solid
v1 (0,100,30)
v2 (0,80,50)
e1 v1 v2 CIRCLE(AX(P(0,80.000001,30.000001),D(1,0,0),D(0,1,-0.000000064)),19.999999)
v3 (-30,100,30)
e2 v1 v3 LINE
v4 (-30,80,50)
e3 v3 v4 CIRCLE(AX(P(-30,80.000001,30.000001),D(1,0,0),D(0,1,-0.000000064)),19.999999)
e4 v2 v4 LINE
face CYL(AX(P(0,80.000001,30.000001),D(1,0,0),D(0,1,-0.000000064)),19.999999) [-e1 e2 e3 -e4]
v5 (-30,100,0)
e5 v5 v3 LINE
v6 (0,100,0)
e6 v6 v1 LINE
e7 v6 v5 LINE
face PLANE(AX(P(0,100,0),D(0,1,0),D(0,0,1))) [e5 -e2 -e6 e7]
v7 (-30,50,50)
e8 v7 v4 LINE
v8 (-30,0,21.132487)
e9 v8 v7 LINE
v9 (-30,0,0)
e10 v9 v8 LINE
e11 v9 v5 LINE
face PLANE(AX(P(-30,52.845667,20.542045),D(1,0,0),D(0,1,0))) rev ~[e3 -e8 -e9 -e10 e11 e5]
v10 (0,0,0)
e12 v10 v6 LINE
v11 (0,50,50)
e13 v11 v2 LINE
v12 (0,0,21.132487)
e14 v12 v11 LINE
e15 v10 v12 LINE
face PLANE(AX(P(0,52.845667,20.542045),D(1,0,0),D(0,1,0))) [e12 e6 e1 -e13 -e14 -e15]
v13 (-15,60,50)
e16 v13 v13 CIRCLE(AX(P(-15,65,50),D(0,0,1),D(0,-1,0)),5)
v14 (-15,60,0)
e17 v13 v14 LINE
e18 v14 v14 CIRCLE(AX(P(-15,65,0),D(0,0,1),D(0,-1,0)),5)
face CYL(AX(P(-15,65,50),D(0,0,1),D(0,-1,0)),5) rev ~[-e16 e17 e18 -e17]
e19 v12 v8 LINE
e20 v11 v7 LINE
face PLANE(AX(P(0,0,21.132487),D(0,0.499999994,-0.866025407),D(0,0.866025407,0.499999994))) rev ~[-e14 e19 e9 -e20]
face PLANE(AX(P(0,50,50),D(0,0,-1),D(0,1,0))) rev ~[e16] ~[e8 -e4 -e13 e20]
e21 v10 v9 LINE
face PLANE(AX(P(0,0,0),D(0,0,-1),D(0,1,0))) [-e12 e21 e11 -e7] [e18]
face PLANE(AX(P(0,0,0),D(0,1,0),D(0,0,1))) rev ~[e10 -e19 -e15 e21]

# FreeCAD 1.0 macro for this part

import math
import FreeCAD as App
import Part
import Sketcher
from FreeCAD import Vector
Q = App.Units.Quantity

doc = App.newDocument("Part")
body = doc.addObject("PartDesign::Body", "Body")

# Sketch on YZ plane
sketch1 = body.newObject("Sketcher::SketchObject", "Sketch")
sketch1.AttachmentSupport = (doc.getObject("YZ_Plane"), [""])
sketch1.MapMode = "FlatFace"
sketch1.addGeometry([
    Part.LineSegment(Vector(0, 0, 0), Vector(100, 0, 0)),  # 0
    Part.LineSegment(Vector(100, 0, 0), Vector(100, 30, 0)),  # 1
    Part.ArcOfCircle(Part.Circle(Vector(80, 30, 0), Vector(0, 0, 1), 20), math.radians(0), math.radians(90)),  # 2
    Part.LineSegment(Vector(80, 50, 0), Vector(50, 50, 0)),  # 3
    Part.LineSegment(Vector(50, 50, 0), Vector(0, 21, 0)),  # 4
    Part.LineSegment(Vector(0, 21, 0), Vector(0, 0, 0)),  # 5
], False)
sketch1.addConstraint([
    Sketcher.Constraint("Coincident", 0, 2, 1, 1),
    Sketcher.Constraint("Tangent", 1, 2, 2, 1),
    Sketcher.Constraint("Tangent", 2, 2, 3, 1),
    Sketcher.Constraint("Coincident", 3, 2, 4, 1),
    Sketcher.Constraint("Coincident", 4, 2, 5, 1),
    Sketcher.Constraint("Coincident", 5, 2, 0, 1),
    Sketcher.Constraint("Horizontal", 0),
    Sketcher.Constraint("Vertical", 1),
    Sketcher.Constraint("Horizontal", 3),
    Sketcher.Constraint("Vertical", 5),
    Sketcher.Constraint("Coincident", 5, 2, -1, 1),
    Sketcher.Constraint("Equal", 3, 1),
    Sketcher.Constraint("Radius", 2, 19.999999),
    Sketcher.Constraint("DistanceX", 0, 1, 0, 2, 100.0),
    Sketcher.Constraint("DistanceX", 3, 2, 3, 1, 30.0),
    Sketcher.Constraint("Angle", 4, Q("-150 deg")),
])
pad1 = body.newObject("PartDesign::Pad", "Pad")
pad1.Profile = sketch1
pad1.Length = 30
pad1.Reversed = True

# Sketch on XY plane
sketch2 = body.newObject("Sketcher::SketchObject", "Sketch001")
sketch2.AttachmentSupport = (doc.getObject("XY_Plane"), [""])
sketch2.MapMode = "FlatFace"
sketch2.AttachmentOffset = App.Placement(Vector(0, 0, 50), App.Rotation())
sketch2.addGeometry(Part.Circle(Vector(-15, 65, 0), Vector(0, 0, 1), 5), False)
sketch2.addConstraint([
    Sketcher.Constraint("Diameter", 0, 10.0),
    Sketcher.Constraint("DistanceX", 0, 3, -1, 1, 15.0),
    Sketcher.Constraint("DistanceY", -1, 1, 0, 3, 65.0),
])
pocket1 = body.newObject("PartDesign::Pocket", "Pocket")
pocket1.Profile = sketch2
pocket1.Type = "ThroughAll"

doc.recompute()
